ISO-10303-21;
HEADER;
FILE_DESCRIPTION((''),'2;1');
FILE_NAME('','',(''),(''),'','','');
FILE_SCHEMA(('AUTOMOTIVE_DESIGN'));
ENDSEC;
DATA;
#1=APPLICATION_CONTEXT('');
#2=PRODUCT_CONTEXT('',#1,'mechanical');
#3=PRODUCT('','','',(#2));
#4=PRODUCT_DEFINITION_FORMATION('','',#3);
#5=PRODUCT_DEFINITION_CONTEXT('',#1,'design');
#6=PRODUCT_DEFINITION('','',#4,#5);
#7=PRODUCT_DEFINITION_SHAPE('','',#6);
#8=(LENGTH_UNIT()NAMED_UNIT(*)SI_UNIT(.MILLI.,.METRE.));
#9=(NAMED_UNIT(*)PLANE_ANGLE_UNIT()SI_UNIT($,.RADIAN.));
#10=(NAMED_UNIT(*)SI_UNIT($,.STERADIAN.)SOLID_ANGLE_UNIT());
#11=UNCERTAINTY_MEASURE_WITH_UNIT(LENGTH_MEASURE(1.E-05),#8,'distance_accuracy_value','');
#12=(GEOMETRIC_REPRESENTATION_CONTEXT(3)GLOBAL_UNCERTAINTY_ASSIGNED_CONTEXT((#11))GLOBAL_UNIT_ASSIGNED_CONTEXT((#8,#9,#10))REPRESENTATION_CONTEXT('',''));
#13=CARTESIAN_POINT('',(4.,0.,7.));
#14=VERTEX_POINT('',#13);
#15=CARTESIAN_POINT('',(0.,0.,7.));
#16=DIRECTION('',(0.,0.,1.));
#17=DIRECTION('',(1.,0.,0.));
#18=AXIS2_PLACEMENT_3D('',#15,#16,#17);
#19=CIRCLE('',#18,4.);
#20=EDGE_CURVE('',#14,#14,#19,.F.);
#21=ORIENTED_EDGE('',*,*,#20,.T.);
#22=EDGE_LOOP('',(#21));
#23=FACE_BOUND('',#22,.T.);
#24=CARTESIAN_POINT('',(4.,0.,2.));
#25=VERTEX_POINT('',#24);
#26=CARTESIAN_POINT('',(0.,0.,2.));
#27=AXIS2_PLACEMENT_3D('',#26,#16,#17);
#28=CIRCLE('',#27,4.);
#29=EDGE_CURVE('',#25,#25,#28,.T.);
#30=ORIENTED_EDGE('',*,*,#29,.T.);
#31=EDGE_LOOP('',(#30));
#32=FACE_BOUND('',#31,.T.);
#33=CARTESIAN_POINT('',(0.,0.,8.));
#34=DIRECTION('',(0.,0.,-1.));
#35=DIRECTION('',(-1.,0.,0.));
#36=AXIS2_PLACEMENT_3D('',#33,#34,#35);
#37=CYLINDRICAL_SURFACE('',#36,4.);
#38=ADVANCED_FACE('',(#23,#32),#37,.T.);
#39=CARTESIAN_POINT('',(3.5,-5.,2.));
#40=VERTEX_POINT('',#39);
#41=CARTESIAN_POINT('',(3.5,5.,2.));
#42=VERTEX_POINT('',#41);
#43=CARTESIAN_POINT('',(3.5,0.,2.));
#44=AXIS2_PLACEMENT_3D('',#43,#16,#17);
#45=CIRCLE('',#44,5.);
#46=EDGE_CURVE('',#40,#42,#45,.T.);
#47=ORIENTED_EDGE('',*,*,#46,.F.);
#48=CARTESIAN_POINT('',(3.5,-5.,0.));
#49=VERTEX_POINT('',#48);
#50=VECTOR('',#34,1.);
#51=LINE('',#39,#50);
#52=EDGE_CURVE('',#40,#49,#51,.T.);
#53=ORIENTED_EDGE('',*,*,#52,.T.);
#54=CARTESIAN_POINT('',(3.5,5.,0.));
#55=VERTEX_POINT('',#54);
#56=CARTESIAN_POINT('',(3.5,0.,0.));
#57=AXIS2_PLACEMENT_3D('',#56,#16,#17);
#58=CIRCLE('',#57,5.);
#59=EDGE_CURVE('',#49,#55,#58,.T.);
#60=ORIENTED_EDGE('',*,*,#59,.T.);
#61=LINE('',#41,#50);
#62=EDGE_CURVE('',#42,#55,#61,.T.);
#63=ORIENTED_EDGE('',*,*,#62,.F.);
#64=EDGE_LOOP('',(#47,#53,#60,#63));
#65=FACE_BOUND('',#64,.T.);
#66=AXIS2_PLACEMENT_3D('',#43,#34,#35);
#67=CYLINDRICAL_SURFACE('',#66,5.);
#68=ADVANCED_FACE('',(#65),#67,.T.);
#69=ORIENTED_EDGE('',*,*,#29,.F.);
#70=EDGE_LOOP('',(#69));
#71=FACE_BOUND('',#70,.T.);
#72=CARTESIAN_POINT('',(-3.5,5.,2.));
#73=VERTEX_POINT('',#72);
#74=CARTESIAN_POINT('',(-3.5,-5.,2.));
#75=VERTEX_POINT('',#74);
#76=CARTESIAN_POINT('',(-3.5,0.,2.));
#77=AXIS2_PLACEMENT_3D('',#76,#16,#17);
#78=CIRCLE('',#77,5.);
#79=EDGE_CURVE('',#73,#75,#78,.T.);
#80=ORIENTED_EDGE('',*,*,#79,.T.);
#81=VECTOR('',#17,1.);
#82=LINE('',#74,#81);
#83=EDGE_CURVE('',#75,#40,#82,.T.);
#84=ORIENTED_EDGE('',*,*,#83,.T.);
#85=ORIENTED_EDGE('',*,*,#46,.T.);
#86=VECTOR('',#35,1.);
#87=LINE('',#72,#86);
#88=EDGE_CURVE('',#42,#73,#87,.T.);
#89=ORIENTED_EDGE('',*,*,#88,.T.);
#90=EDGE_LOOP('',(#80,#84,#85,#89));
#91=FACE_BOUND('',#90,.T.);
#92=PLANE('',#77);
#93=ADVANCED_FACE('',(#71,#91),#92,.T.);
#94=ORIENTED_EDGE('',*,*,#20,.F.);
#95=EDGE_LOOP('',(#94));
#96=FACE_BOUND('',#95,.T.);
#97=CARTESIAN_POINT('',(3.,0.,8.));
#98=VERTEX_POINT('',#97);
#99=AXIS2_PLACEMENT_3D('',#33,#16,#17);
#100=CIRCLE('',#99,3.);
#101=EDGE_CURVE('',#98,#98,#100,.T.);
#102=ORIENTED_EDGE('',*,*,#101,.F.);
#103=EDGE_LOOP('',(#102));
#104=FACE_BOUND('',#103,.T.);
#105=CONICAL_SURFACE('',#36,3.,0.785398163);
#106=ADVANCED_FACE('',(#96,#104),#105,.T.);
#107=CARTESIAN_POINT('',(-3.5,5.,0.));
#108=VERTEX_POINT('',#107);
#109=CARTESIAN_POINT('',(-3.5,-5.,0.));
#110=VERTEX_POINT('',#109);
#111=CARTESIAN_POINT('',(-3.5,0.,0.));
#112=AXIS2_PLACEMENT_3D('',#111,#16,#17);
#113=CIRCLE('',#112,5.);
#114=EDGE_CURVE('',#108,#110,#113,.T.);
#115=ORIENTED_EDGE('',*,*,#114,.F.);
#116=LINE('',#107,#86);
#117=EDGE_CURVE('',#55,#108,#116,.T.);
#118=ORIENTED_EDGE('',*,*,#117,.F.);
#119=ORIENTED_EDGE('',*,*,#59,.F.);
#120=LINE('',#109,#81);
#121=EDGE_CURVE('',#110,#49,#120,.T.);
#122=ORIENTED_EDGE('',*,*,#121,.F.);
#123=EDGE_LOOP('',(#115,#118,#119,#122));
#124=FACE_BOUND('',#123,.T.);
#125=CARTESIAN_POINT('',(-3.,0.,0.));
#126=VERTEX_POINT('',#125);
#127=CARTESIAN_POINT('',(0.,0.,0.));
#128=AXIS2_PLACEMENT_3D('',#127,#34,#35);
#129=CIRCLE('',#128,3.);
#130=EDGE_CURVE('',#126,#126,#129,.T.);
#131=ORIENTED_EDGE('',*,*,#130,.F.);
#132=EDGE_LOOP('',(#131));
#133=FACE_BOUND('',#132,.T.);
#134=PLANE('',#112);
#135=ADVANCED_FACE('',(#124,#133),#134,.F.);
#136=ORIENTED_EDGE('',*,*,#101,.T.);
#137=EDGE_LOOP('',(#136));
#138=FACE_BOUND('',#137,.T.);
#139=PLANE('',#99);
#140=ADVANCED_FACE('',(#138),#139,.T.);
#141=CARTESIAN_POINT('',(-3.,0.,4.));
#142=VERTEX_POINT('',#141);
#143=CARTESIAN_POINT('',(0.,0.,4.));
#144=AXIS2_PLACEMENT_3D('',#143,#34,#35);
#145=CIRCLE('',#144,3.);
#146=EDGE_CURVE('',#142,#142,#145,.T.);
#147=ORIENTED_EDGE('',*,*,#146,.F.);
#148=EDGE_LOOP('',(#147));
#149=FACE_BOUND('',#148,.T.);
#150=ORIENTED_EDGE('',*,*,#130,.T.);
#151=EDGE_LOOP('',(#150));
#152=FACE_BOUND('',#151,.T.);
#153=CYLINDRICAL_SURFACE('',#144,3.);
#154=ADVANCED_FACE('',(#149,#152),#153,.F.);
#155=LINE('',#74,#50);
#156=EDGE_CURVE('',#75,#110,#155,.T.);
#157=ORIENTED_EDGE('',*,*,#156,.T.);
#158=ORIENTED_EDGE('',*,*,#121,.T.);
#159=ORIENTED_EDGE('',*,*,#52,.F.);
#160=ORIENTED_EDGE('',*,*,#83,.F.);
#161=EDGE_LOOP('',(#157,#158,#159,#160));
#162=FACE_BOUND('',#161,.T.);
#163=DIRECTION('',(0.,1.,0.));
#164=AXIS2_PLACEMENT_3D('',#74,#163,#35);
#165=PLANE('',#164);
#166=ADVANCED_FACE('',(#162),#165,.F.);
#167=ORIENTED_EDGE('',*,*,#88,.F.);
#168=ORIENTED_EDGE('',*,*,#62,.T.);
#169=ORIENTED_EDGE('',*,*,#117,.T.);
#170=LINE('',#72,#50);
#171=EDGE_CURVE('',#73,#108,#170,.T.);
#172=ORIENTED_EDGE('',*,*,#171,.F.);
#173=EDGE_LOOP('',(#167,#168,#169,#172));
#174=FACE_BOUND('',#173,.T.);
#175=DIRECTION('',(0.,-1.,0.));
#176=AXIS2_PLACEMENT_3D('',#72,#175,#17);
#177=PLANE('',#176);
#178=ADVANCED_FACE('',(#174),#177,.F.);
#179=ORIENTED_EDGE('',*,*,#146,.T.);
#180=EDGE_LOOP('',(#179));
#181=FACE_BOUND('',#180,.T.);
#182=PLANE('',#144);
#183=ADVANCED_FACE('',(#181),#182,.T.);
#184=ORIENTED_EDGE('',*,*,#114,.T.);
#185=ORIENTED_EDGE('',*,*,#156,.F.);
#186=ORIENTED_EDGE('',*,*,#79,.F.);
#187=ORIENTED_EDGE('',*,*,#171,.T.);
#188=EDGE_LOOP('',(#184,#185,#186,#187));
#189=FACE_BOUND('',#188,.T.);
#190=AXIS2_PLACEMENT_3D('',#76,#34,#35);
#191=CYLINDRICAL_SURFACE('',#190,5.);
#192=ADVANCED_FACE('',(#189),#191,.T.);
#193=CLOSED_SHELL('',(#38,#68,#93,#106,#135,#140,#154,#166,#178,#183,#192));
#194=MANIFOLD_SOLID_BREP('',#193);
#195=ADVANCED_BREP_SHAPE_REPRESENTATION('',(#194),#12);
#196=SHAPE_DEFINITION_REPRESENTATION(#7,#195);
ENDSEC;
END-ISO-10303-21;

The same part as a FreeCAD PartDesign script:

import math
import FreeCAD as App
import Part
import Sketcher
Q = App.Units.Quantity


def edges_at(feature, points):
    """Names of the edges that pass closest to the given points."""
    edges = feature.Shape.Edges
    near = lambda p: min(range(len(edges)), key=lambda i: edges[i].distToShape(Part.Vertex(*p))[0])
    return sorted({f"Edge{near(p) + 1}" for p in points})

doc = App.newDocument("Part")
body = doc.addObject("PartDesign::Body", "Body")

sketch1 = body.newObject("Sketcher::SketchObject", "Sketch")
sketch1.AttachmentSupport = (doc.getObject("XY_Plane"), [""])
sketch1.MapMode = "FlatFace"
sketch1.addGeometry(Part.LineSegment(App.Vector(4, 5, 0), App.Vector(-4, 5, 0)), False)
sketch1.addGeometry(Part.ArcOfCircle(Part.Circle(App.Vector(-4, 0, 0), App.Vector(0, 0, 1), 5), math.radians(90), math.radians(270)), False)
sketch1.addGeometry(Part.LineSegment(App.Vector(-4, -5, 0), App.Vector(4, -5, 0)), False)
sketch1.addGeometry(Part.ArcOfCircle(Part.Circle(App.Vector(4, 0, 0), App.Vector(0, 0, 1), 5), math.radians(-90), math.radians(90)), False)
sketch1.addConstraint(Sketcher.Constraint("Tangent", 0, 2, 1, 1))
sketch1.addConstraint(Sketcher.Constraint("Tangent", 1, 2, 2, 1))
sketch1.addConstraint(Sketcher.Constraint("Tangent", 2, 2, 3, 1))
sketch1.addConstraint(Sketcher.Constraint("Tangent", 3, 2, 0, 1))
sketch1.addConstraint(Sketcher.Constraint("Horizontal", 0))
sketch1.addConstraint(Sketcher.Constraint("Horizontal", 2))
sketch1.addConstraint(Sketcher.Constraint("Symmetric", 1, 3, 3, 3, -1, 1))
sketch1.addConstraint(Sketcher.Constraint("Radius", 1, Q("5 mm")))
sketch1.addConstraint(Sketcher.Constraint("DistanceX", 0, 2, 0, 1, Q("7 mm")))
pad1 = body.newObject("PartDesign::Pad", "Pad")
pad1.Profile = sketch1
pad1.Length = 2

sketch2 = body.newObject("Sketcher::SketchObject", "Sketch001")
sketch2.AttachmentSupport = (doc.getObject("XY_Plane"), [""])
sketch2.MapMode = "FlatFace"
sketch2.AttachmentOffset = App.Placement(App.Vector(0, 0, 2), App.Rotation())
sketch2.addGeometry(Part.Circle(App.Vector(0, 0, 0), App.Vector(0, 0, 1), 4), False)
sketch2.addConstraint(Sketcher.Constraint("Coincident", 0, 3, -1, 1))
sketch2.addConstraint(Sketcher.Constraint("Diameter", 0, Q("8 mm")))
pad2 = body.newObject("PartDesign::Pad", "Pad001")
pad2.Profile = sketch2
pad2.Length = 6

sketch3 = body.newObject("Sketcher::SketchObject", "Sketch002")
sketch3.AttachmentSupport = (doc.getObject("XY_Plane"), [""])
sketch3.MapMode = "FlatFace"
sketch3.addGeometry(Part.Circle(App.Vector(0, 0, 0), App.Vector(0, 0, 1), 3), False)
sketch3.addConstraint(Sketcher.Constraint("Coincident", 0, 3, -1, 1))
sketch3.addConstraint(Sketcher.Constraint("Diameter", 0, Q("6 mm")))
pocket1 = body.newObject("PartDesign::Pocket", "Pocket")
pocket1.Profile = sketch3
pocket1.Length = 4
pocket1.Reversed = True
doc.recompute()

chamfer = body.newObject("PartDesign::Chamfer", "Chamfer")
chamfer.Base = (pocket1, edges_at(pocket1, [(-4, 0, 8)]))
chamfer.Size = 1

doc.recompute()
